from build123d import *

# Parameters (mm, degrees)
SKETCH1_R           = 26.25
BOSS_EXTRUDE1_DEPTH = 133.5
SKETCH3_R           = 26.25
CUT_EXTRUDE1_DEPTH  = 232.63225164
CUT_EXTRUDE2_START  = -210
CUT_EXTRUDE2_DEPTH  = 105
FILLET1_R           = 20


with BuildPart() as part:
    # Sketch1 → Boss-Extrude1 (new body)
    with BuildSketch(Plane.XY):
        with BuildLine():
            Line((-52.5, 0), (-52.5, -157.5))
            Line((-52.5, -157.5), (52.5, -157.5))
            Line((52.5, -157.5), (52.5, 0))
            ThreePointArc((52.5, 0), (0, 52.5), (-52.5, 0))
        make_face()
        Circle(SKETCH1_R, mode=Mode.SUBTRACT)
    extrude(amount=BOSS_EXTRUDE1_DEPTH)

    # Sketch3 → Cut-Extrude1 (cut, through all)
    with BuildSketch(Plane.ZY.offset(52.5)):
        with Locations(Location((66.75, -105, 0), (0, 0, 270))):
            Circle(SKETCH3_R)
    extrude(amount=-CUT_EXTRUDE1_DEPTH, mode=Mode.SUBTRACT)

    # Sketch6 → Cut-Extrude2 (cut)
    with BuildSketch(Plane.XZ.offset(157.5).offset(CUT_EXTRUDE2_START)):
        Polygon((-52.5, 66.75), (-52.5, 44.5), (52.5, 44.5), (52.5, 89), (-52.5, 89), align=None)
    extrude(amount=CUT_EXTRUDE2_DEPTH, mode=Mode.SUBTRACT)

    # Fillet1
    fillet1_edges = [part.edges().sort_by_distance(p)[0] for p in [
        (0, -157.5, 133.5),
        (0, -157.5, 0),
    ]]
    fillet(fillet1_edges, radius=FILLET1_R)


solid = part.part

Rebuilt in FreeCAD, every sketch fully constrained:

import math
import FreeCAD as App
import Part
import Sketcher
Q = App.Units.Quantity


def edges_at(feature, points):
    """Names of the edges that pass closest to the given points."""
    edges = feature.Shape.Edges
    near = lambda p: min(range(len(edges)), key=lambda i: edges[i].distToShape(Part.Vertex(*p))[0])
    return sorted({f"Edge{near(p) + 1}" for p in points})


def add_polygon(sketch, points):
    """Adds a closed chain of lines whose ends are joined by coincident constraints."""
    first, n = sketch.GeometryCount, len(points)
    for a, b in zip(points, points[1:] + points[:1]):
        sketch.addGeometry(Part.LineSegment(App.Vector(*a, 0), App.Vector(*b, 0)), False)
    for i in range(n):
        sketch.addConstraint(Sketcher.Constraint("Coincident", first + i, 2, first + (i + 1) % n, 1))

doc = App.newDocument("Part")
body = doc.addObject("PartDesign::Body", "Body")

# Sketch on XY plane
sketch1 = body.newObject("Sketcher::SketchObject", "Sketch")
sketch1.AttachmentSupport = (doc.getObject("XY_Plane"), [""])
sketch1.MapMode = "FlatFace"
sketch1.addGeometry(Part.LineSegment(App.Vector(-52, 0, 0), App.Vector(-52, -158, 0)), False)
sketch1.addGeometry(Part.LineSegment(App.Vector(-52, -158, 0), App.Vector(52, -158, 0)), False)
sketch1.addGeometry(Part.LineSegment(App.Vector(52, -158, 0), App.Vector(52, 0, 0)), False)
sketch1.addGeometry(Part.ArcOfCircle(Part.Circle(App.Vector(0, 0, 0), App.Vector(0, 0, 1), 52), math.radians(0), math.radians(180)), False)
sketch1.addGeometry(Part.Circle(App.Vector(0, 0, 0), App.Vector(0, 0, 1), 26), False)
sketch1.addConstraint(Sketcher.Constraint("Coincident", 0, 2, 1, 1))
sketch1.addConstraint(Sketcher.Constraint("Coincident", 1, 2, 2, 1))
sketch1.addConstraint(Sketcher.Constraint("Tangent", 2, 2, 3, 1))
sketch1.addConstraint(Sketcher.Constraint("Tangent", 3, 2, 0, 1))
sketch1.addConstraint(Sketcher.Constraint("Vertical", 0))
sketch1.addConstraint(Sketcher.Constraint("Horizontal", 1))
sketch1.addConstraint(Sketcher.Constraint("Vertical", 2))
sketch1.addConstraint(Sketcher.Constraint("Coincident", 3, 3, -1, 1))
sketch1.addConstraint(Sketcher.Constraint("Coincident", 4, 3, -1, 1))
sketch1.addConstraint(Sketcher.Constraint("Diameter", 4, Q("52.5 mm")))
sketch1.addConstraint(Sketcher.Constraint("Radius", 3, Q("52.5 mm")))
sketch1.addConstraint(Sketcher.Constraint("DistanceY", 0, 2, 0, 1, Q("157.5 mm")))
pad1 = body.newObject("PartDesign::Pad", "Pad")
pad1.Profile = sketch1
pad1.Length = 133.5

# Sketch on YZ plane
sketch2 = body.newObject("Sketcher::SketchObject", "Sketch001")
sketch2.AttachmentSupport = (doc.getObject("YZ_Plane"), [""])
sketch2.MapMode = "FlatFace"
sketch2.AttachmentOffset = App.Placement(App.Vector(0, 0, -52.5), App.Rotation())
sketch2.addGeometry(Part.Circle(App.Vector(-105, 67, 0), App.Vector(0, 0, 1), 26), False)
sketch2.addConstraint(Sketcher.Constraint("Diameter", 0, Q("52.5 mm")))
sketch2.addConstraint(Sketcher.Constraint("DistanceX", 0, 3, -1, 1, Q("105 mm")))
sketch2.addConstraint(Sketcher.Constraint("DistanceY", -1, 1, 0, 3, Q("66.75 mm")))
pocket1 = body.newObject("PartDesign::Pocket", "Pocket")
pocket1.Profile = sketch2
pocket1.Type = "ThroughAll"
pocket1.Reversed = True

# Sketch on XZ plane
sketch3 = body.newObject("Sketcher::SketchObject", "Sketch002")
sketch3.AttachmentSupport = (doc.getObject("XZ_Plane"), [""])
sketch3.MapMode = "FlatFace"
sketch3.AttachmentOffset = App.Placement(App.Vector(0, 0, -52.5), App.Rotation())
add_polygon(sketch3, [(-52, 44), (52, 44), (52, 89), (-52, 89)])  # lines 0-3
sketch3.addConstraint(Sketcher.Constraint("Horizontal", 0))
sketch3.addConstraint(Sketcher.Constraint("Vertical", 1))
sketch3.addConstraint(Sketcher.Constraint("Horizontal", 2))
sketch3.addConstraint(Sketcher.Constraint("Vertical", 3))
sketch3.addConstraint(Sketcher.Constraint("DistanceX", 0, 1, 0, 2, Q("105 mm")))
sketch3.addConstraint(Sketcher.Constraint("DistanceY", 1, 1, 1, 2, Q("44.5 mm")))
sketch3.addConstraint(Sketcher.Constraint("DistanceY", -1, 1, 1, 2, Q("89 mm")))
sketch3.addConstraint(Sketcher.Constraint("DistanceX", -1, 1, 0, 2, Q("52.5 mm")))
pocket2 = body.newObject("PartDesign::Pocket", "Pocket001")
pocket2.Profile = sketch3
pocket2.Length = 105
pocket2.Reversed = True
doc.recompute()

fillet = body.newObject("PartDesign::Fillet", "Fillet")
fillet.Base = (pocket2, edges_at(pocket2, [(0, -157.5, 133.5), (0, -157.5, 0)]))
fillet.Radius = 20

doc.recompute()
